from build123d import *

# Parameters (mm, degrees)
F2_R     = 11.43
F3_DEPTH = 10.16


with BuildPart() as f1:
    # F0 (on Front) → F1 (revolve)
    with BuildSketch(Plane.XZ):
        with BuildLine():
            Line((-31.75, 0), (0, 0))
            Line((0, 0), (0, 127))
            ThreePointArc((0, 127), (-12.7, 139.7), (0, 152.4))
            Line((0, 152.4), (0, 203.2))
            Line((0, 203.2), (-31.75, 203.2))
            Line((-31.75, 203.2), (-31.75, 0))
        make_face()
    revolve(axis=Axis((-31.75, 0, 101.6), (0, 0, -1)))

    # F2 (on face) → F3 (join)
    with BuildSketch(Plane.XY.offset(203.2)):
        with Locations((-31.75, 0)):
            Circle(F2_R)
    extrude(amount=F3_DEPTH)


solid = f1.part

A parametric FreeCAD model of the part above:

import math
import FreeCAD as App
import Part
import Sketcher
Q = App.Units.Quantity

doc = App.newDocument("Part")
body = doc.addObject("PartDesign::Body", "Body")

sketch1 = doc.addObject("Sketcher::SketchObject", "Sketch")
body.addObject(sketch1)
sketch1.AttachmentSupport = (doc.XZ_Plane, [""])
sketch1.MapMode = "FlatFace"
sketch1.addGeometry(Part.LineSegment(App.Vector(-32, 0, 0), App.Vector(0, 0, 0)), False)
sketch1.addGeometry(Part.LineSegment(App.Vector(0, 0, 0), App.Vector(0, 127, 0)), False)
sketch1.addGeometry(Part.ArcOfCircle(Part.Circle(App.Vector(0, 140, 0), App.Vector(0, 0, 1), 13), math.radians(90), math.radians(270)), False)
sketch1.addGeometry(Part.LineSegment(App.Vector(0, 152, 0), App.Vector(0, 203, 0)), False)
sketch1.addGeometry(Part.LineSegment(App.Vector(0, 203, 0), App.Vector(-32, 203, 0)), False)
sketch1.addGeometry(Part.LineSegment(App.Vector(-32, 203, 0), App.Vector(-32, 0, 0)), False)
sketch1.addGeometry(Part.LineSegment(App.Vector(-32, 203, 0), App.Vector(-32, 0, 0)), True)
sketch1.addConstraint(Sketcher.Constraint("Coincident", 0, 2, 1, 1))
sketch1.addConstraint(Sketcher.Constraint("Coincident", 1, 2, 2, 2))
sketch1.addConstraint(Sketcher.Constraint("Coincident", 2, 1, 3, 1))
sketch1.addConstraint(Sketcher.Constraint("Coincident", 3, 2, 4, 1))
sketch1.addConstraint(Sketcher.Constraint("Coincident", 4, 2, 5, 1))
sketch1.addConstraint(Sketcher.Constraint("Coincident", 5, 2, 0, 1))
sketch1.addConstraint(Sketcher.Constraint("Horizontal", 0))
sketch1.addConstraint(Sketcher.Constraint("Vertical", 1))
sketch1.addConstraint(Sketcher.Constraint("Vertical", 3))
sketch1.addConstraint(Sketcher.Constraint("Horizontal", 4))
sketch1.addConstraint(Sketcher.Constraint("Vertical", 5))
sketch1.addConstraint(Sketcher.Constraint("Vertical", 6))
sketch1.addConstraint(Sketcher.Constraint("Coincident", 0, 2, -1, 1))
sketch1.addConstraint(Sketcher.Constraint("Coincident", 6, 1, 4, 2))
sketch1.addConstraint(Sketcher.Constraint("PointOnObject", 2, 3, -2))
sketch1.addConstraint(Sketcher.Constraint("PointOnObject", 2, 1, -2))
sketch1.addConstraint(Sketcher.Constraint("PointOnObject", 6, 2, -1))
sketch1.addConstraint(Sketcher.Constraint("Radius", 2, Q("0.5 in")))
sketch1.addConstraint(Sketcher.Constraint("DistanceY", 1, 1, 1, 2, Q("5 in")))
sketch1.addConstraint(Sketcher.Constraint("DistanceY", 3, 1, 3, 2, Q("2 in")))
sketch1.addConstraint(Sketcher.Constraint("DistanceX", 0, 1, 0, 2, Q("1.25 in")))
revolution = doc.addObject("PartDesign::Revolution", "Revolution")
body.addObject(revolution)
revolution.Profile = sketch1
revolution.ReferenceAxis = (sketch1, ["Axis0"])
revolution.Angle = 360

sketch2 = doc.addObject("Sketcher::SketchObject", "Sketch001")
body.addObject(sketch2)
sketch2.AttachmentSupport = (doc.XY_Plane, [""])
sketch2.MapMode = "FlatFace"
sketch2.AttachmentOffset = App.Placement(App.Vector(0, 0, 8 * 25.4), App.Rotation())
sketch2.addGeometry(Part.Circle(App.Vector(-32, 0, 0), App.Vector(0, 0, 1), 11), False)
sketch2.addConstraint(Sketcher.Constraint("PointOnObject", 0, 3, -1))
sketch2.addConstraint(Sketcher.Constraint("Diameter", 0, Q("0.9 in")))
sketch2.addConstraint(Sketcher.Constraint("DistanceX", 0, 3, -1, 1, Q("1.25 in")))
pad1 = doc.addObject("PartDesign::Pad", "Pad")
body.addObject(pad1)
pad1.Profile = sketch2
pad1.Length = Q("0.4 in")

doc.recompute()
